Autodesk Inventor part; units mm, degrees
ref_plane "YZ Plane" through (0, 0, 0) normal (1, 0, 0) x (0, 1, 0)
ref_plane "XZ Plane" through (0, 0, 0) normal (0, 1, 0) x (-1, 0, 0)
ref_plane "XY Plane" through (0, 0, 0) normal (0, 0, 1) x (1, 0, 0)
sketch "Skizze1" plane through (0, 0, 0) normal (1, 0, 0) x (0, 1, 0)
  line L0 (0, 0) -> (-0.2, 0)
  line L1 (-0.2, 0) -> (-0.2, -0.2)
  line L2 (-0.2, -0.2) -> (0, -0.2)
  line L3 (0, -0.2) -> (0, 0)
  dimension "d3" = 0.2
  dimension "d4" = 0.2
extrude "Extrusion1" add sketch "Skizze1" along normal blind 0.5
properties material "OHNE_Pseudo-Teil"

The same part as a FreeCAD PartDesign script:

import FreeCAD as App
import Part
import Sketcher

V = App.Vector

doc = App.newDocument("Part")
body = doc.addObject("PartDesign::Body", "Body")

sketch1 = doc.addObject("Sketcher::SketchObject", "Sketch")
body.addObject(sketch1)
sketch1.AttachmentSupport = (doc.YZ_Plane, [""])
sketch1.MapMode = "FlatFace"
sketch1.addGeometry(Part.LineSegment(V(0, -0.2, 0), V(0, 0, 0)), False)
sketch1.addGeometry(Part.LineSegment(V(0, 0, 0), V(-0.2, 0, 0)), False)
sketch1.addGeometry(Part.LineSegment(V(-0.2, 0, 0), V(-0.2, -0.2, 0)), False)
sketch1.addGeometry(Part.LineSegment(V(-0.2, -0.2, 0), V(0, -0.2, 0)), False)
sketch1.addConstraint(Sketcher.Constraint("Coincident", 0, 2, 1, 1))
sketch1.addConstraint(Sketcher.Constraint("Coincident", 1, 2, 2, 1))
sketch1.addConstraint(Sketcher.Constraint("Coincident", 2, 2, 3, 1))
sketch1.addConstraint(Sketcher.Constraint("Coincident", 3, 2, 0, 1))
sketch1.addConstraint(Sketcher.Constraint("Vertical", 0))
sketch1.addConstraint(Sketcher.Constraint("Horizontal", 1))
sketch1.addConstraint(Sketcher.Constraint("Vertical", 2))
sketch1.addConstraint(Sketcher.Constraint("Horizontal", 3))
sketch1.addConstraint(Sketcher.Constraint("Coincident", 0, 2, -1, 1))
sketch1.addConstraint(Sketcher.Constraint("Equal", 3, 0))
sketch1.addConstraint(Sketcher.Constraint("DistanceX", 1, 2, 1, 1, 0.2))
pad1 = doc.addObject("PartDesign::Pad", "Pad")
body.addObject(pad1)
pad1.Profile = sketch1
pad1.Length = 0.5

doc.recompute()
